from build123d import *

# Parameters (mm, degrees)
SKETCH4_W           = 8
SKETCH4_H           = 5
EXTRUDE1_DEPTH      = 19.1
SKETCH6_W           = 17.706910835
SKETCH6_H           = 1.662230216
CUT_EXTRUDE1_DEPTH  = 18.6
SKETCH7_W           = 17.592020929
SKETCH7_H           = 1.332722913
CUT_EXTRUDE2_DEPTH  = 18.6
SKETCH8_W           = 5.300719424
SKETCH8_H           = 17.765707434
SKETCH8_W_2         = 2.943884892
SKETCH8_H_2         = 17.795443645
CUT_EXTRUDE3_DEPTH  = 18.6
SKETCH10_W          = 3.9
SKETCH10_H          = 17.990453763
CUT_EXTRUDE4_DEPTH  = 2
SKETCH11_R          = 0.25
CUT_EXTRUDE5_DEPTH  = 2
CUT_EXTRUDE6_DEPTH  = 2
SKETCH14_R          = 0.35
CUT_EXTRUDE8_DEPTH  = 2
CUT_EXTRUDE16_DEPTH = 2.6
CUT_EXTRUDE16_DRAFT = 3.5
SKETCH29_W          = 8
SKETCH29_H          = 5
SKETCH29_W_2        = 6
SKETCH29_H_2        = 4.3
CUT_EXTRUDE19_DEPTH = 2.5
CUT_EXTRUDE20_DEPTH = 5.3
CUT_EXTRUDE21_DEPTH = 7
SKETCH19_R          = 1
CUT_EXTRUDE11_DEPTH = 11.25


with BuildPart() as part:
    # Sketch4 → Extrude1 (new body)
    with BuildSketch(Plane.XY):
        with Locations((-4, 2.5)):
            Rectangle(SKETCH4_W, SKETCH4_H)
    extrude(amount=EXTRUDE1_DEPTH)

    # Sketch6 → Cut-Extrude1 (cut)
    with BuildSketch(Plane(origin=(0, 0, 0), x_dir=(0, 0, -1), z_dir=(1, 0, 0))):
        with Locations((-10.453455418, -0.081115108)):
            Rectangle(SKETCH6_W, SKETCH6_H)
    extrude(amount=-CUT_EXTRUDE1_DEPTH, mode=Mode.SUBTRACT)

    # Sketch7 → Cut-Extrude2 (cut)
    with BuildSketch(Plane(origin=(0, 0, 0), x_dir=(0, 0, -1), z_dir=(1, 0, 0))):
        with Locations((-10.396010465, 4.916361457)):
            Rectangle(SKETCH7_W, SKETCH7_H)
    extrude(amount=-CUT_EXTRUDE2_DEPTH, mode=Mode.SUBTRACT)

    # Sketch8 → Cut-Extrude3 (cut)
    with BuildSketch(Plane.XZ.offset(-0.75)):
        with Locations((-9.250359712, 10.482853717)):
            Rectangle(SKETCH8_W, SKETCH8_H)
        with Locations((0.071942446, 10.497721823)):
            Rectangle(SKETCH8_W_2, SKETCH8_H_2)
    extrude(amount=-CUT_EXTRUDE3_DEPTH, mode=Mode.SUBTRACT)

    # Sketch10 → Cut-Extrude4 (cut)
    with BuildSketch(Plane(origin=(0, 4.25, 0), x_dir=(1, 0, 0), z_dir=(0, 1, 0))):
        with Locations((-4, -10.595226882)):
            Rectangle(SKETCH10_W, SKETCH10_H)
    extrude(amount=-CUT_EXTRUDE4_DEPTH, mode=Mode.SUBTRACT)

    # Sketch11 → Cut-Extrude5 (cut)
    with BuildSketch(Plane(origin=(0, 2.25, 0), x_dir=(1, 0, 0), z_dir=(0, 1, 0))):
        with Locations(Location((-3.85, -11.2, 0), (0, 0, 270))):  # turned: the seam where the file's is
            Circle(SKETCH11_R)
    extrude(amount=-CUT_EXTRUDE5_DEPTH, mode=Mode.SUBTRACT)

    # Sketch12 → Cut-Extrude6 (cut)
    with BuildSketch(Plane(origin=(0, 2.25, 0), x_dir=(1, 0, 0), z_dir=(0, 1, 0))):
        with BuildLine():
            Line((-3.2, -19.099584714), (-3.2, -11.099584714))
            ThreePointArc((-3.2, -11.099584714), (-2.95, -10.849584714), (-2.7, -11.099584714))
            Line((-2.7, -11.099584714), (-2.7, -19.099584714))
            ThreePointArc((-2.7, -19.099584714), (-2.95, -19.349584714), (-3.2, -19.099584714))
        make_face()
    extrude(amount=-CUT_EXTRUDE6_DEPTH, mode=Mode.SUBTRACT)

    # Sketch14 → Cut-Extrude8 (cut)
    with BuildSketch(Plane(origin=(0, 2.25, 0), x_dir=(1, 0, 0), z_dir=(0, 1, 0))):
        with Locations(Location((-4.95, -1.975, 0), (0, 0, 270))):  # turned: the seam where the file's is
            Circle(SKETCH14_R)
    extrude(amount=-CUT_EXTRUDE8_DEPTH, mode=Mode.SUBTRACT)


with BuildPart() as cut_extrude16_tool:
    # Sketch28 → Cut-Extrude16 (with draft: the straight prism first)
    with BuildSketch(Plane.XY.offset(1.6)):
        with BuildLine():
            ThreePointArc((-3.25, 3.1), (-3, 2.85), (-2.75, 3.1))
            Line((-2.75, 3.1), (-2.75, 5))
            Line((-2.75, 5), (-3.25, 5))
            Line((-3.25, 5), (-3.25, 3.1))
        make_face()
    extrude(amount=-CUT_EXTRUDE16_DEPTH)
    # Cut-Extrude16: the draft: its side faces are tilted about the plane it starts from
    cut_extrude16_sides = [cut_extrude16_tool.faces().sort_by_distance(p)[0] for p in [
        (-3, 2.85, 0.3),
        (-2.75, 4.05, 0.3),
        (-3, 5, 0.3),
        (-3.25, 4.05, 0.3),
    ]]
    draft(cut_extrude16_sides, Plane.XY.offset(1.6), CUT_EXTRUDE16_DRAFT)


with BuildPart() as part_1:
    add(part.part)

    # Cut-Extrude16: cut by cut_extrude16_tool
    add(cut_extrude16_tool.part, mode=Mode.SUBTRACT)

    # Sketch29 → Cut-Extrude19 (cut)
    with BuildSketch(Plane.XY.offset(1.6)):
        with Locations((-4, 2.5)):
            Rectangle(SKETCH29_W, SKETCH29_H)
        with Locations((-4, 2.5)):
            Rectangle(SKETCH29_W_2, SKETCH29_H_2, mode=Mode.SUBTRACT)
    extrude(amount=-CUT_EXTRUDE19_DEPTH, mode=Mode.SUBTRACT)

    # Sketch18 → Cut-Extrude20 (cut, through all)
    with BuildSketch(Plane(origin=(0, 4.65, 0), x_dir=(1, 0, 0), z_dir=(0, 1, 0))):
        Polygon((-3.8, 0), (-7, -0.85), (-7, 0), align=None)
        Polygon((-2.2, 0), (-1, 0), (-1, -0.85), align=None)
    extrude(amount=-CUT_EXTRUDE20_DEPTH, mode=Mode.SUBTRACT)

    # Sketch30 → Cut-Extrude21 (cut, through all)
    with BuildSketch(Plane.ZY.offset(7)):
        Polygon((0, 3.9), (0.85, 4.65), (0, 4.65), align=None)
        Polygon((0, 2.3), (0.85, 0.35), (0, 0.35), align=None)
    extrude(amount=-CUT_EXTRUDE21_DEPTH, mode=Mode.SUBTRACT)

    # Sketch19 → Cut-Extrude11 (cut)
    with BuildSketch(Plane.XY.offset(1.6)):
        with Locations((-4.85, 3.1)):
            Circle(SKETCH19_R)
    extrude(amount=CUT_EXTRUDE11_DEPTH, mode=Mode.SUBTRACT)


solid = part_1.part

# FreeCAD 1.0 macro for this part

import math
import FreeCAD as App
import Part
import Sketcher

V = App.Vector
Q = App.Units.Quantity


def faces_at(feature, points):
    """Names of the faces that lie closest to the given points."""
    faces = feature.Shape.Faces
    near = lambda p: min(range(len(faces)), key=lambda i: faces[i].distToShape(Part.Vertex(*p))[0])
    return sorted({f"Face{near(p) + 1}" for p in points})


def add_polygon(sketch, points):
    """Adds a closed chain of lines whose ends are joined by coincident constraints."""
    first, n = sketch.GeometryCount, len(points)
    for a, b in zip(points, points[1:] + points[:1]):
        sketch.addGeometry(Part.LineSegment(App.Vector(*a, 0), App.Vector(*b, 0)), False)
    for i in range(n):
        sketch.addConstraint(Sketcher.Constraint("Coincident", first + i, 2, first + (i + 1) % n, 1))

doc = App.newDocument("Part")
body = doc.addObject("PartDesign::Body", "Body")

sketch1 = body.newObject("Sketcher::SketchObject", "Sketch")
sketch1.AttachmentSupport = (doc.getObject("XY_Plane"), [""])
sketch1.MapMode = "FlatFace"
add_polygon(sketch1, [(-8, 5), (-8, 0), (0, 0), (0, 5)])
sketch1.addConstraint(Sketcher.Constraint("Vertical", 0))
sketch1.addConstraint(Sketcher.Constraint("Horizontal", 1))
sketch1.addConstraint(Sketcher.Constraint("Vertical", 2))
sketch1.addConstraint(Sketcher.Constraint("Horizontal", 3))
sketch1.addConstraint(Sketcher.Constraint("Coincident", 1, 2, -1, 1))
sketch1.addConstraint(Sketcher.Constraint("DistanceX", 1, 1, 1, 2, Q("8 mm")))
sketch1.addConstraint(Sketcher.Constraint("DistanceY", 0, 2, 0, 1, Q("5 mm")))
pad1 = body.newObject("PartDesign::Pad", "Pad")
pad1.Profile = sketch1
pad1.Length = 19.1

sketch2 = body.newObject("Sketcher::SketchObject", "Sketch001")
sketch2.AttachmentSupport = (doc.getObject("YZ_Plane"), [""])
sketch2.MapMode = "FlatFace"
add_polygon(sketch2, [(0.8, 19.3), (-0.9, 19.3), (-0.9, 1.6), (0.8, 1.6)])
sketch2.addConstraint(Sketcher.Constraint("Horizontal", 0))
sketch2.addConstraint(Sketcher.Constraint("Vertical", 1))
sketch2.addConstraint(Sketcher.Constraint("Horizontal", 2))
sketch2.addConstraint(Sketcher.Constraint("Vertical", 3))
sketch2.addConstraint(Sketcher.Constraint("DistanceY", -1, 1, 1, 2, Q("1.6 mm")))
sketch2.addConstraint(Sketcher.Constraint("DistanceX", -1, 1, 2, 2, Q("0.75 mm")))
sketch2.addConstraint(Sketcher.Constraint("DistanceX", 0, 2, 0, 1, Q("1.66223 mm")))
sketch2.addConstraint(Sketcher.Constraint("DistanceY", 1, 2, 1, 1, Q("17.706911 mm")))
pocket1 = body.newObject("PartDesign::Pocket", "Pocket")
pocket1.Profile = sketch2
pocket1.Length = 18.6

sketch3 = body.newObject("Sketcher::SketchObject", "Sketch002")
sketch3.AttachmentSupport = (doc.getObject("YZ_Plane"), [""])
sketch3.MapMode = "FlatFace"
add_polygon(sketch3, [(5.6, 19.2), (4.3, 19.2), (4.3, 1.6), (5.6, 1.6)])
sketch3.addConstraint(Sketcher.Constraint("Horizontal", 0))
sketch3.addConstraint(Sketcher.Constraint("Vertical", 1))
sketch3.addConstraint(Sketcher.Constraint("Horizontal", 2))
sketch3.addConstraint(Sketcher.Constraint("Vertical", 3))
sketch3.addConstraint(Sketcher.Constraint("DistanceY", -1, 1, 1, 2, Q("1.6 mm")))
sketch3.addConstraint(Sketcher.Constraint("DistanceX", -1, 1, 0, 2, Q("4.25 mm")))
sketch3.addConstraint(Sketcher.Constraint("DistanceY", 1, 2, 1, 1, Q("17.592021 mm")))
sketch3.addConstraint(Sketcher.Constraint("DistanceX", 0, 2, 0, 1, Q("1.332723 mm")))
pocket2 = body.newObject("PartDesign::Pocket", "Pocket001")
pocket2.Profile = sketch3
pocket2.Length = 18.6

sketch4 = body.newObject("Sketcher::SketchObject", "Sketch003")
sketch4.AttachmentSupport = (doc.getObject("XZ_Plane"), [""])
sketch4.MapMode = "FlatFace"
sketch4.AttachmentOffset = App.Placement(V(0, 0, -0.75), App.Rotation())
add_polygon(sketch4, [(-11.9, 19.4), (-11.9, 1.6), (-6.6, 1.6), (-6.6, 19.4)])
add_polygon(sketch4, [(-1.4, 19.4), (-1.4, 1.6), (1.5, 1.6), (1.5, 19.4)])
sketch4.addConstraint(Sketcher.Constraint("Vertical", 0))
sketch4.addConstraint(Sketcher.Constraint("Horizontal", 1))
sketch4.addConstraint(Sketcher.Constraint("Vertical", 2))
sketch4.addConstraint(Sketcher.Constraint("Horizontal", 3))
sketch4.addConstraint(Sketcher.Constraint("Vertical", 4))
sketch4.addConstraint(Sketcher.Constraint("Horizontal", 5))
sketch4.addConstraint(Sketcher.Constraint("Vertical", 6))
sketch4.addConstraint(Sketcher.Constraint("Horizontal", 7))
sketch4.addConstraint(Sketcher.Constraint("Horizontal", 1, 2, 4, 2))
sketch4.addConstraint(Sketcher.Constraint("DistanceY", -1, 1, 0, 2, Q("1.6 mm")))
sketch4.addConstraint(Sketcher.Constraint("DistanceX", 1, 2, -1, 1, Q("6.6 mm")))
sketch4.addConstraint(Sketcher.Constraint("DistanceX", 4, 2, -1, 1, Q("1.4 mm")))
sketch4.addConstraint(Sketcher.Constraint("DistanceX", 1, 1, 1, 2, Q("5.300719 mm")))
sketch4.addConstraint(Sketcher.Constraint("DistanceX", 5, 1, 5, 2, Q("2.943885 mm")))
sketch4.addConstraint(Sketcher.Constraint("DistanceY", 0, 2, 0, 1, Q("17.765707 mm")))
sketch4.addConstraint(Sketcher.Constraint("DistanceY", 4, 2, 4, 1, Q("17.795444 mm")))
pocket3 = body.newObject("PartDesign::Pocket", "Pocket002")
pocket3.Profile = sketch4
pocket3.Length = 18.6

sketch5 = body.newObject("Sketcher::SketchObject", "Sketch004")
sketch5.AttachmentSupport = (doc.getObject("XZ_Plane"), [""])
sketch5.MapMode = "FlatFace"
sketch5.AttachmentOffset = App.Placement(V(0, 0, -4.25), App.Rotation())
add_polygon(sketch5, [(-6, 1.6), (-6, 19.6), (-2, 19.6), (-2, 1.6)])
sketch5.addConstraint(Sketcher.Constraint("Vertical", 0))
sketch5.addConstraint(Sketcher.Constraint("Horizontal", 1))
sketch5.addConstraint(Sketcher.Constraint("Vertical", 2))
sketch5.addConstraint(Sketcher.Constraint("Horizontal", 3))
sketch5.addConstraint(Sketcher.Constraint("DistanceX", 1, 1, 1, 2, Q("3.9 mm")))
sketch5.addConstraint(Sketcher.Constraint("DistanceY", -1, 1, 2, 2, Q("1.6 mm")))
sketch5.addConstraint(Sketcher.Constraint("DistanceX", 0, 2, -1, 1, Q("5.95 mm")))
sketch5.addConstraint(Sketcher.Constraint("DistanceY", 0, 1, 0, 2, Q("17.990454 mm")))
pocket4 = body.newObject("PartDesign::Pocket", "Pocket003")
pocket4.Profile = sketch5
pocket4.Length = 2
pocket4.Reversed = True

sketch6 = body.newObject("Sketcher::SketchObject", "Sketch005")
sketch6.AttachmentSupport = (doc.getObject("XZ_Plane"), [""])
sketch6.MapMode = "FlatFace"
sketch6.AttachmentOffset = App.Placement(V(0, 0, -2.25), App.Rotation())
sketch6.addGeometry(Part.Circle(V(-3.85, 11.2, 0), V(0, 0, 1), 0.25), False)
sketch6.addConstraint(Sketcher.Constraint("Diameter", 0, Q("0.5 mm")))
sketch6.addConstraint(Sketcher.Constraint("DistanceY", -1, 1, 0, 3, Q("11.2 mm")))
sketch6.addConstraint(Sketcher.Constraint("DistanceX", 0, 3, -1, 1, Q("3.85 mm")))
pocket5 = body.newObject("PartDesign::Pocket", "Pocket004")
pocket5.Profile = sketch6
pocket5.Length = 2
pocket5.Reversed = True

sketch7 = body.newObject("Sketcher::SketchObject", "Sketch006")
sketch7.AttachmentSupport = (doc.getObject("XZ_Plane"), [""])
sketch7.MapMode = "FlatFace"
sketch7.AttachmentOffset = App.Placement(V(0, 0, -2.25), App.Rotation())
sketch7.addGeometry(Part.LineSegment(V(-3.2, 11.1, 0), V(-3.2, 19.1, 0)), False)
sketch7.addGeometry(Part.ArcOfCircle(Part.Circle(V(-2.95, 19.1, 0), V(0, 0, 1), 0.25), math.radians(0), math.radians(180)), False)
sketch7.addGeometry(Part.LineSegment(V(-2.7, 19.1, 0), V(-2.7, 11.1, 0)), False)
sketch7.addGeometry(Part.ArcOfCircle(Part.Circle(V(-2.95, 11.1, 0), V(0, 0, 1), 0.25), math.radians(180), math.radians(360)), False)
sketch7.addConstraint(Sketcher.Constraint("Tangent", 0, 2, 1, 2))
sketch7.addConstraint(Sketcher.Constraint("Tangent", 1, 1, 2, 1))
sketch7.addConstraint(Sketcher.Constraint("Tangent", 2, 2, 3, 2))
sketch7.addConstraint(Sketcher.Constraint("Tangent", 3, 1, 0, 1))
sketch7.addConstraint(Sketcher.Constraint("Vertical", 0))
sketch7.addConstraint(Sketcher.Constraint("Vertical", 2))
sketch7.addConstraint(Sketcher.Constraint("DistanceY", 0, 1, 0, 2, Q("8 mm")))
sketch7.addConstraint(Sketcher.Constraint("Radius", 1, Q("0.25 mm")))
sketch7.addConstraint(Sketcher.Constraint("DistanceX", 0, 2, -1, 1, Q("3.2 mm")))
sketch7.addConstraint(Sketcher.Constraint("DistanceY", -1, 1, 1, 3, Q("19.099585 mm")))
pocket6 = body.newObject("PartDesign::Pocket", "Pocket005")
pocket6.Profile = sketch7
pocket6.Length = 2
pocket6.Reversed = True

sketch8 = body.newObject("Sketcher::SketchObject", "Sketch007")
sketch8.AttachmentSupport = (doc.getObject("XZ_Plane"), [""])
sketch8.MapMode = "FlatFace"
sketch8.AttachmentOffset = App.Placement(V(0, 0, -2.25), App.Rotation())
sketch8.addGeometry(Part.Circle(V(-4.95, 1.98, 0), V(0, 0, 1), 0.35), False)
sketch8.addConstraint(Sketcher.Constraint("Diameter", 0, Q("0.7 mm")))
sketch8.addConstraint(Sketcher.Constraint("DistanceX", 0, 3, -1, 1, Q("4.95 mm")))
sketch8.addConstraint(Sketcher.Constraint("DistanceY", -1, 1, 0, 3, Q("1.975 mm")))
pocket7 = body.newObject("PartDesign::Pocket", "Pocket006")
pocket7.Profile = sketch8
pocket7.Length = 2
pocket7.Reversed = True
body2 = doc.addObject("PartDesign::Body", "Body001")

sketch9 = body2.newObject("Sketcher::SketchObject", "Sketch008")
sketch9.AttachmentSupport = (doc.getObject("XY_Plane001"), [""])
sketch9.MapMode = "FlatFace"
sketch9.AttachmentOffset = App.Placement(V(0, 0, 1.6), App.Rotation())
sketch9.addGeometry(Part.ArcOfCircle(Part.Circle(V(-3, 3.1, 0), V(0, 0, 1), 0.25), math.radians(180), math.radians(360)), False)
sketch9.addGeometry(Part.LineSegment(V(-2.75, 3.1, 0), V(-2.75, 5, 0)), False)
sketch9.addGeometry(Part.LineSegment(V(-2.75, 5, 0), V(-3.25, 5, 0)), False)
sketch9.addGeometry(Part.LineSegment(V(-3.25, 5, 0), V(-3.25, 3.1, 0)), False)
sketch9.addConstraint(Sketcher.Constraint("Tangent", 0, 2, 1, 1))
sketch9.addConstraint(Sketcher.Constraint("Coincident", 1, 2, 2, 1))
sketch9.addConstraint(Sketcher.Constraint("Coincident", 2, 2, 3, 1))
sketch9.addConstraint(Sketcher.Constraint("Tangent", 3, 2, 0, 1))
sketch9.addConstraint(Sketcher.Constraint("Vertical", 1))
sketch9.addConstraint(Sketcher.Constraint("Horizontal", 2))
sketch9.addConstraint(Sketcher.Constraint("Vertical", 3))
sketch9.addConstraint(Sketcher.Constraint("Radius", 0, Q("0.25 mm")))
sketch9.addConstraint(Sketcher.Constraint("DistanceY", 1, 1, 1, 2, Q("1.9 mm")))
sketch9.addConstraint(Sketcher.Constraint("DistanceX", 0, 3, -1, 1, Q("3 mm")))
sketch9.addConstraint(Sketcher.Constraint("DistanceY", -1, 1, 1, 2, Q("5 mm")))
pad2 = body2.newObject("PartDesign::Pad", "Pad001")
pad2.Profile = sketch9
pad2.Length = 2.6
pad2.Reversed = True
doc.recompute()

datumplane = body2.newObject("PartDesign::Plane", "DatumPlane")
datumplane.AttachmentSupport = (doc.getObject("XY_Plane001"), [""])
datumplane.MapMode = "FlatFace"
datumplane.AttachmentOffset = App.Placement(V(0, 0, 1.6), App.Rotation())
draft = body2.newObject("PartDesign::Draft", "Draft")
draft.Base = (pad2, faces_at(pad2, [
    (-3, 2.85, 0.3),
    (-2.75, 4.05, 0.3),
    (-3, 5, 0.3),
    (-3.25, 4.05, 0.3),
]))
draft.NeutralPlane = (datumplane, [""])
draft.Angle = 3.5
draft.Reversed = False
doc.recompute()

boolean = body.newObject("PartDesign::Boolean", "Boolean")
boolean.Type = "Cut"
boolean.addObjects([body2])

sketch10 = body.newObject("Sketcher::SketchObject", "Sketch009")
sketch10.AttachmentSupport = (doc.getObject("XY_Plane"), [""])
sketch10.MapMode = "FlatFace"
sketch10.AttachmentOffset = App.Placement(V(0, 0, 1.6), App.Rotation())
add_polygon(sketch10, [(-8, 5), (-8, 0), (0, 0), (0, 5)])
add_polygon(sketch10, [(-1, 0.3), (-7, 0.3), (-7, 4.7), (-1, 4.7)])
sketch10.addConstraint(Sketcher.Constraint("Vertical", 0))
sketch10.addConstraint(Sketcher.Constraint("Horizontal", 1))
sketch10.addConstraint(Sketcher.Constraint("Vertical", 2))
sketch10.addConstraint(Sketcher.Constraint("Horizontal", 3))
sketch10.addConstraint(Sketcher.Constraint("Horizontal", 4))
sketch10.addConstraint(Sketcher.Constraint("Vertical", 5))
sketch10.addConstraint(Sketcher.Constraint("Horizontal", 6))
sketch10.addConstraint(Sketcher.Constraint("Vertical", 7))
sketch10.addConstraint(Sketcher.Constraint("Coincident", 1, 2, -1, 1))
sketch10.addConstraint(Sketcher.Constraint("DistanceX", 1, 1, 1, 2, Q("8 mm")))
sketch10.addConstraint(Sketcher.Constraint("DistanceX", 4, 2, 4, 1, Q("6 mm")))
sketch10.addConstraint(Sketcher.Constraint("DistanceY", 0, 2, 0, 1, Q("5 mm")))
sketch10.addConstraint(Sketcher.Constraint("DistanceY", 5, 1, 5, 2, Q("4.3 mm")))
sketch10.addConstraint(Sketcher.Constraint("DistanceX", 4, 2, -1, 1, Q("7 mm")))
sketch10.addConstraint(Sketcher.Constraint("DistanceY", -1, 1, 4, 2, Q("0.35 mm")))
pocket8 = body.newObject("PartDesign::Pocket", "Pocket007")
pocket8.Profile = sketch10
pocket8.Length = 2.5

sketch11 = body.newObject("Sketcher::SketchObject", "Sketch010")
sketch11.AttachmentSupport = (doc.getObject("XZ_Plane"), [""])
sketch11.MapMode = "FlatFace"
sketch11.AttachmentOffset = App.Placement(V(0, 0, -4.65), App.Rotation())
add_polygon(sketch11, [(-7, 0.8), (-3.8, 0), (-7, 0)])
add_polygon(sketch11, [(-1, 0), (-2.2, 0), (-1, 0.8)])
sketch11.addConstraint(Sketcher.Constraint("Horizontal", 1))
sketch11.addConstraint(Sketcher.Constraint("Vertical", 2))
sketch11.addConstraint(Sketcher.Constraint("Horizontal", 3))
sketch11.addConstraint(Sketcher.Constraint("Vertical", 5))
sketch11.addConstraint(Sketcher.Constraint("PointOnObject", 0, 2, -1))
sketch11.addConstraint(Sketcher.Constraint("PointOnObject", 3, 2, -1))
sketch11.addConstraint(Sketcher.Constraint("Horizontal", 2, 2, 4, 2))
sketch11.addConstraint(Sketcher.Constraint("DistanceX", 1, 2, 1, 1, Q("3.2 mm")))
sketch11.addConstraint(Sketcher.Constraint("DistanceX", 3, 2, 3, 1, Q("1.2 mm")))
sketch11.addConstraint(Sketcher.Constraint("DistanceX", 1, 2, -1, 1, Q("7 mm")))
sketch11.addConstraint(Sketcher.Constraint("DistanceX", 4, 2, -1, 1, Q("1 mm")))
sketch11.addConstraint(Sketcher.Constraint("DistanceY", 2, 1, 2, 2, Q("0.85 mm")))
pocket9 = body.newObject("PartDesign::Pocket", "Pocket008")
pocket9.Profile = sketch11
pocket9.Type = "ThroughAll"
pocket9.Reversed = True

sketch12 = body.newObject("Sketcher::SketchObject", "Sketch011")
sketch12.AttachmentSupport = (doc.getObject("YZ_Plane"), [""])
sketch12.MapMode = "FlatFace"
sketch12.AttachmentOffset = App.Placement(V(0, 0, -7), App.Rotation())
add_polygon(sketch12, [(3.9, 0), (4.7, 0.8), (4.7, 0)])
add_polygon(sketch12, [(0.3, 0.8), (2.3, 0), (0.3, 0)])
sketch12.addConstraint(Sketcher.Constraint("Vertical", 1))
sketch12.addConstraint(Sketcher.Constraint("Horizontal", 2))
sketch12.addConstraint(Sketcher.Constraint("Horizontal", 4))
sketch12.addConstraint(Sketcher.Constraint("Vertical", 5))
sketch12.addConstraint(Sketcher.Constraint("PointOnObject", 1, 2, -1))
sketch12.addConstraint(Sketcher.Constraint("PointOnObject", 3, 2, -1))
sketch12.addConstraint(Sketcher.Constraint("Horizontal", 0, 2, 5, 2))
sketch12.addConstraint(Sketcher.Constraint("DistanceX", 2, 2, 2, 1, Q("0.75 mm")))
sketch12.addConstraint(Sketcher.Constraint("DistanceX", 4, 2, 4, 1, Q("1.95 mm")))
sketch12.addConstraint(Sketcher.Constraint("DistanceY", 1, 2, 1, 1, Q("0.85 mm")))
sketch12.addConstraint(Sketcher.Constraint("DistanceX", -1, 1, 2, 2, Q("3.9 mm")))
sketch12.addConstraint(Sketcher.Constraint("DistanceX", -1, 1, 3, 2, Q("2.3 mm")))
pocket10 = body.newObject("PartDesign::Pocket", "Pocket009")
pocket10.Profile = sketch12
pocket10.Type = "ThroughAll"
pocket10.Reversed = True

sketch13 = body.newObject("Sketcher::SketchObject", "Sketch012")
sketch13.AttachmentSupport = (doc.getObject("XY_Plane"), [""])
sketch13.MapMode = "FlatFace"
sketch13.AttachmentOffset = App.Placement(V(0, 0, 1.6), App.Rotation())
sketch13.addGeometry(Part.Circle(V(-4.8, 3.1, 0), V(0, 0, 1), 1), False)
sketch13.addConstraint(Sketcher.Constraint("Diameter", 0, Q("2 mm")))
sketch13.addConstraint(Sketcher.Constraint("DistanceY", -1, 1, 0, 3, Q("3.1 mm")))
sketch13.addConstraint(Sketcher.Constraint("DistanceX", 0, 3, -1, 1, Q("4.85 mm")))
pocket11 = body.newObject("PartDesign::Pocket", "Pocket010")
pocket11.Profile = sketch13
pocket11.Length = 11.25
pocket11.Reversed = True

doc.recompute()
